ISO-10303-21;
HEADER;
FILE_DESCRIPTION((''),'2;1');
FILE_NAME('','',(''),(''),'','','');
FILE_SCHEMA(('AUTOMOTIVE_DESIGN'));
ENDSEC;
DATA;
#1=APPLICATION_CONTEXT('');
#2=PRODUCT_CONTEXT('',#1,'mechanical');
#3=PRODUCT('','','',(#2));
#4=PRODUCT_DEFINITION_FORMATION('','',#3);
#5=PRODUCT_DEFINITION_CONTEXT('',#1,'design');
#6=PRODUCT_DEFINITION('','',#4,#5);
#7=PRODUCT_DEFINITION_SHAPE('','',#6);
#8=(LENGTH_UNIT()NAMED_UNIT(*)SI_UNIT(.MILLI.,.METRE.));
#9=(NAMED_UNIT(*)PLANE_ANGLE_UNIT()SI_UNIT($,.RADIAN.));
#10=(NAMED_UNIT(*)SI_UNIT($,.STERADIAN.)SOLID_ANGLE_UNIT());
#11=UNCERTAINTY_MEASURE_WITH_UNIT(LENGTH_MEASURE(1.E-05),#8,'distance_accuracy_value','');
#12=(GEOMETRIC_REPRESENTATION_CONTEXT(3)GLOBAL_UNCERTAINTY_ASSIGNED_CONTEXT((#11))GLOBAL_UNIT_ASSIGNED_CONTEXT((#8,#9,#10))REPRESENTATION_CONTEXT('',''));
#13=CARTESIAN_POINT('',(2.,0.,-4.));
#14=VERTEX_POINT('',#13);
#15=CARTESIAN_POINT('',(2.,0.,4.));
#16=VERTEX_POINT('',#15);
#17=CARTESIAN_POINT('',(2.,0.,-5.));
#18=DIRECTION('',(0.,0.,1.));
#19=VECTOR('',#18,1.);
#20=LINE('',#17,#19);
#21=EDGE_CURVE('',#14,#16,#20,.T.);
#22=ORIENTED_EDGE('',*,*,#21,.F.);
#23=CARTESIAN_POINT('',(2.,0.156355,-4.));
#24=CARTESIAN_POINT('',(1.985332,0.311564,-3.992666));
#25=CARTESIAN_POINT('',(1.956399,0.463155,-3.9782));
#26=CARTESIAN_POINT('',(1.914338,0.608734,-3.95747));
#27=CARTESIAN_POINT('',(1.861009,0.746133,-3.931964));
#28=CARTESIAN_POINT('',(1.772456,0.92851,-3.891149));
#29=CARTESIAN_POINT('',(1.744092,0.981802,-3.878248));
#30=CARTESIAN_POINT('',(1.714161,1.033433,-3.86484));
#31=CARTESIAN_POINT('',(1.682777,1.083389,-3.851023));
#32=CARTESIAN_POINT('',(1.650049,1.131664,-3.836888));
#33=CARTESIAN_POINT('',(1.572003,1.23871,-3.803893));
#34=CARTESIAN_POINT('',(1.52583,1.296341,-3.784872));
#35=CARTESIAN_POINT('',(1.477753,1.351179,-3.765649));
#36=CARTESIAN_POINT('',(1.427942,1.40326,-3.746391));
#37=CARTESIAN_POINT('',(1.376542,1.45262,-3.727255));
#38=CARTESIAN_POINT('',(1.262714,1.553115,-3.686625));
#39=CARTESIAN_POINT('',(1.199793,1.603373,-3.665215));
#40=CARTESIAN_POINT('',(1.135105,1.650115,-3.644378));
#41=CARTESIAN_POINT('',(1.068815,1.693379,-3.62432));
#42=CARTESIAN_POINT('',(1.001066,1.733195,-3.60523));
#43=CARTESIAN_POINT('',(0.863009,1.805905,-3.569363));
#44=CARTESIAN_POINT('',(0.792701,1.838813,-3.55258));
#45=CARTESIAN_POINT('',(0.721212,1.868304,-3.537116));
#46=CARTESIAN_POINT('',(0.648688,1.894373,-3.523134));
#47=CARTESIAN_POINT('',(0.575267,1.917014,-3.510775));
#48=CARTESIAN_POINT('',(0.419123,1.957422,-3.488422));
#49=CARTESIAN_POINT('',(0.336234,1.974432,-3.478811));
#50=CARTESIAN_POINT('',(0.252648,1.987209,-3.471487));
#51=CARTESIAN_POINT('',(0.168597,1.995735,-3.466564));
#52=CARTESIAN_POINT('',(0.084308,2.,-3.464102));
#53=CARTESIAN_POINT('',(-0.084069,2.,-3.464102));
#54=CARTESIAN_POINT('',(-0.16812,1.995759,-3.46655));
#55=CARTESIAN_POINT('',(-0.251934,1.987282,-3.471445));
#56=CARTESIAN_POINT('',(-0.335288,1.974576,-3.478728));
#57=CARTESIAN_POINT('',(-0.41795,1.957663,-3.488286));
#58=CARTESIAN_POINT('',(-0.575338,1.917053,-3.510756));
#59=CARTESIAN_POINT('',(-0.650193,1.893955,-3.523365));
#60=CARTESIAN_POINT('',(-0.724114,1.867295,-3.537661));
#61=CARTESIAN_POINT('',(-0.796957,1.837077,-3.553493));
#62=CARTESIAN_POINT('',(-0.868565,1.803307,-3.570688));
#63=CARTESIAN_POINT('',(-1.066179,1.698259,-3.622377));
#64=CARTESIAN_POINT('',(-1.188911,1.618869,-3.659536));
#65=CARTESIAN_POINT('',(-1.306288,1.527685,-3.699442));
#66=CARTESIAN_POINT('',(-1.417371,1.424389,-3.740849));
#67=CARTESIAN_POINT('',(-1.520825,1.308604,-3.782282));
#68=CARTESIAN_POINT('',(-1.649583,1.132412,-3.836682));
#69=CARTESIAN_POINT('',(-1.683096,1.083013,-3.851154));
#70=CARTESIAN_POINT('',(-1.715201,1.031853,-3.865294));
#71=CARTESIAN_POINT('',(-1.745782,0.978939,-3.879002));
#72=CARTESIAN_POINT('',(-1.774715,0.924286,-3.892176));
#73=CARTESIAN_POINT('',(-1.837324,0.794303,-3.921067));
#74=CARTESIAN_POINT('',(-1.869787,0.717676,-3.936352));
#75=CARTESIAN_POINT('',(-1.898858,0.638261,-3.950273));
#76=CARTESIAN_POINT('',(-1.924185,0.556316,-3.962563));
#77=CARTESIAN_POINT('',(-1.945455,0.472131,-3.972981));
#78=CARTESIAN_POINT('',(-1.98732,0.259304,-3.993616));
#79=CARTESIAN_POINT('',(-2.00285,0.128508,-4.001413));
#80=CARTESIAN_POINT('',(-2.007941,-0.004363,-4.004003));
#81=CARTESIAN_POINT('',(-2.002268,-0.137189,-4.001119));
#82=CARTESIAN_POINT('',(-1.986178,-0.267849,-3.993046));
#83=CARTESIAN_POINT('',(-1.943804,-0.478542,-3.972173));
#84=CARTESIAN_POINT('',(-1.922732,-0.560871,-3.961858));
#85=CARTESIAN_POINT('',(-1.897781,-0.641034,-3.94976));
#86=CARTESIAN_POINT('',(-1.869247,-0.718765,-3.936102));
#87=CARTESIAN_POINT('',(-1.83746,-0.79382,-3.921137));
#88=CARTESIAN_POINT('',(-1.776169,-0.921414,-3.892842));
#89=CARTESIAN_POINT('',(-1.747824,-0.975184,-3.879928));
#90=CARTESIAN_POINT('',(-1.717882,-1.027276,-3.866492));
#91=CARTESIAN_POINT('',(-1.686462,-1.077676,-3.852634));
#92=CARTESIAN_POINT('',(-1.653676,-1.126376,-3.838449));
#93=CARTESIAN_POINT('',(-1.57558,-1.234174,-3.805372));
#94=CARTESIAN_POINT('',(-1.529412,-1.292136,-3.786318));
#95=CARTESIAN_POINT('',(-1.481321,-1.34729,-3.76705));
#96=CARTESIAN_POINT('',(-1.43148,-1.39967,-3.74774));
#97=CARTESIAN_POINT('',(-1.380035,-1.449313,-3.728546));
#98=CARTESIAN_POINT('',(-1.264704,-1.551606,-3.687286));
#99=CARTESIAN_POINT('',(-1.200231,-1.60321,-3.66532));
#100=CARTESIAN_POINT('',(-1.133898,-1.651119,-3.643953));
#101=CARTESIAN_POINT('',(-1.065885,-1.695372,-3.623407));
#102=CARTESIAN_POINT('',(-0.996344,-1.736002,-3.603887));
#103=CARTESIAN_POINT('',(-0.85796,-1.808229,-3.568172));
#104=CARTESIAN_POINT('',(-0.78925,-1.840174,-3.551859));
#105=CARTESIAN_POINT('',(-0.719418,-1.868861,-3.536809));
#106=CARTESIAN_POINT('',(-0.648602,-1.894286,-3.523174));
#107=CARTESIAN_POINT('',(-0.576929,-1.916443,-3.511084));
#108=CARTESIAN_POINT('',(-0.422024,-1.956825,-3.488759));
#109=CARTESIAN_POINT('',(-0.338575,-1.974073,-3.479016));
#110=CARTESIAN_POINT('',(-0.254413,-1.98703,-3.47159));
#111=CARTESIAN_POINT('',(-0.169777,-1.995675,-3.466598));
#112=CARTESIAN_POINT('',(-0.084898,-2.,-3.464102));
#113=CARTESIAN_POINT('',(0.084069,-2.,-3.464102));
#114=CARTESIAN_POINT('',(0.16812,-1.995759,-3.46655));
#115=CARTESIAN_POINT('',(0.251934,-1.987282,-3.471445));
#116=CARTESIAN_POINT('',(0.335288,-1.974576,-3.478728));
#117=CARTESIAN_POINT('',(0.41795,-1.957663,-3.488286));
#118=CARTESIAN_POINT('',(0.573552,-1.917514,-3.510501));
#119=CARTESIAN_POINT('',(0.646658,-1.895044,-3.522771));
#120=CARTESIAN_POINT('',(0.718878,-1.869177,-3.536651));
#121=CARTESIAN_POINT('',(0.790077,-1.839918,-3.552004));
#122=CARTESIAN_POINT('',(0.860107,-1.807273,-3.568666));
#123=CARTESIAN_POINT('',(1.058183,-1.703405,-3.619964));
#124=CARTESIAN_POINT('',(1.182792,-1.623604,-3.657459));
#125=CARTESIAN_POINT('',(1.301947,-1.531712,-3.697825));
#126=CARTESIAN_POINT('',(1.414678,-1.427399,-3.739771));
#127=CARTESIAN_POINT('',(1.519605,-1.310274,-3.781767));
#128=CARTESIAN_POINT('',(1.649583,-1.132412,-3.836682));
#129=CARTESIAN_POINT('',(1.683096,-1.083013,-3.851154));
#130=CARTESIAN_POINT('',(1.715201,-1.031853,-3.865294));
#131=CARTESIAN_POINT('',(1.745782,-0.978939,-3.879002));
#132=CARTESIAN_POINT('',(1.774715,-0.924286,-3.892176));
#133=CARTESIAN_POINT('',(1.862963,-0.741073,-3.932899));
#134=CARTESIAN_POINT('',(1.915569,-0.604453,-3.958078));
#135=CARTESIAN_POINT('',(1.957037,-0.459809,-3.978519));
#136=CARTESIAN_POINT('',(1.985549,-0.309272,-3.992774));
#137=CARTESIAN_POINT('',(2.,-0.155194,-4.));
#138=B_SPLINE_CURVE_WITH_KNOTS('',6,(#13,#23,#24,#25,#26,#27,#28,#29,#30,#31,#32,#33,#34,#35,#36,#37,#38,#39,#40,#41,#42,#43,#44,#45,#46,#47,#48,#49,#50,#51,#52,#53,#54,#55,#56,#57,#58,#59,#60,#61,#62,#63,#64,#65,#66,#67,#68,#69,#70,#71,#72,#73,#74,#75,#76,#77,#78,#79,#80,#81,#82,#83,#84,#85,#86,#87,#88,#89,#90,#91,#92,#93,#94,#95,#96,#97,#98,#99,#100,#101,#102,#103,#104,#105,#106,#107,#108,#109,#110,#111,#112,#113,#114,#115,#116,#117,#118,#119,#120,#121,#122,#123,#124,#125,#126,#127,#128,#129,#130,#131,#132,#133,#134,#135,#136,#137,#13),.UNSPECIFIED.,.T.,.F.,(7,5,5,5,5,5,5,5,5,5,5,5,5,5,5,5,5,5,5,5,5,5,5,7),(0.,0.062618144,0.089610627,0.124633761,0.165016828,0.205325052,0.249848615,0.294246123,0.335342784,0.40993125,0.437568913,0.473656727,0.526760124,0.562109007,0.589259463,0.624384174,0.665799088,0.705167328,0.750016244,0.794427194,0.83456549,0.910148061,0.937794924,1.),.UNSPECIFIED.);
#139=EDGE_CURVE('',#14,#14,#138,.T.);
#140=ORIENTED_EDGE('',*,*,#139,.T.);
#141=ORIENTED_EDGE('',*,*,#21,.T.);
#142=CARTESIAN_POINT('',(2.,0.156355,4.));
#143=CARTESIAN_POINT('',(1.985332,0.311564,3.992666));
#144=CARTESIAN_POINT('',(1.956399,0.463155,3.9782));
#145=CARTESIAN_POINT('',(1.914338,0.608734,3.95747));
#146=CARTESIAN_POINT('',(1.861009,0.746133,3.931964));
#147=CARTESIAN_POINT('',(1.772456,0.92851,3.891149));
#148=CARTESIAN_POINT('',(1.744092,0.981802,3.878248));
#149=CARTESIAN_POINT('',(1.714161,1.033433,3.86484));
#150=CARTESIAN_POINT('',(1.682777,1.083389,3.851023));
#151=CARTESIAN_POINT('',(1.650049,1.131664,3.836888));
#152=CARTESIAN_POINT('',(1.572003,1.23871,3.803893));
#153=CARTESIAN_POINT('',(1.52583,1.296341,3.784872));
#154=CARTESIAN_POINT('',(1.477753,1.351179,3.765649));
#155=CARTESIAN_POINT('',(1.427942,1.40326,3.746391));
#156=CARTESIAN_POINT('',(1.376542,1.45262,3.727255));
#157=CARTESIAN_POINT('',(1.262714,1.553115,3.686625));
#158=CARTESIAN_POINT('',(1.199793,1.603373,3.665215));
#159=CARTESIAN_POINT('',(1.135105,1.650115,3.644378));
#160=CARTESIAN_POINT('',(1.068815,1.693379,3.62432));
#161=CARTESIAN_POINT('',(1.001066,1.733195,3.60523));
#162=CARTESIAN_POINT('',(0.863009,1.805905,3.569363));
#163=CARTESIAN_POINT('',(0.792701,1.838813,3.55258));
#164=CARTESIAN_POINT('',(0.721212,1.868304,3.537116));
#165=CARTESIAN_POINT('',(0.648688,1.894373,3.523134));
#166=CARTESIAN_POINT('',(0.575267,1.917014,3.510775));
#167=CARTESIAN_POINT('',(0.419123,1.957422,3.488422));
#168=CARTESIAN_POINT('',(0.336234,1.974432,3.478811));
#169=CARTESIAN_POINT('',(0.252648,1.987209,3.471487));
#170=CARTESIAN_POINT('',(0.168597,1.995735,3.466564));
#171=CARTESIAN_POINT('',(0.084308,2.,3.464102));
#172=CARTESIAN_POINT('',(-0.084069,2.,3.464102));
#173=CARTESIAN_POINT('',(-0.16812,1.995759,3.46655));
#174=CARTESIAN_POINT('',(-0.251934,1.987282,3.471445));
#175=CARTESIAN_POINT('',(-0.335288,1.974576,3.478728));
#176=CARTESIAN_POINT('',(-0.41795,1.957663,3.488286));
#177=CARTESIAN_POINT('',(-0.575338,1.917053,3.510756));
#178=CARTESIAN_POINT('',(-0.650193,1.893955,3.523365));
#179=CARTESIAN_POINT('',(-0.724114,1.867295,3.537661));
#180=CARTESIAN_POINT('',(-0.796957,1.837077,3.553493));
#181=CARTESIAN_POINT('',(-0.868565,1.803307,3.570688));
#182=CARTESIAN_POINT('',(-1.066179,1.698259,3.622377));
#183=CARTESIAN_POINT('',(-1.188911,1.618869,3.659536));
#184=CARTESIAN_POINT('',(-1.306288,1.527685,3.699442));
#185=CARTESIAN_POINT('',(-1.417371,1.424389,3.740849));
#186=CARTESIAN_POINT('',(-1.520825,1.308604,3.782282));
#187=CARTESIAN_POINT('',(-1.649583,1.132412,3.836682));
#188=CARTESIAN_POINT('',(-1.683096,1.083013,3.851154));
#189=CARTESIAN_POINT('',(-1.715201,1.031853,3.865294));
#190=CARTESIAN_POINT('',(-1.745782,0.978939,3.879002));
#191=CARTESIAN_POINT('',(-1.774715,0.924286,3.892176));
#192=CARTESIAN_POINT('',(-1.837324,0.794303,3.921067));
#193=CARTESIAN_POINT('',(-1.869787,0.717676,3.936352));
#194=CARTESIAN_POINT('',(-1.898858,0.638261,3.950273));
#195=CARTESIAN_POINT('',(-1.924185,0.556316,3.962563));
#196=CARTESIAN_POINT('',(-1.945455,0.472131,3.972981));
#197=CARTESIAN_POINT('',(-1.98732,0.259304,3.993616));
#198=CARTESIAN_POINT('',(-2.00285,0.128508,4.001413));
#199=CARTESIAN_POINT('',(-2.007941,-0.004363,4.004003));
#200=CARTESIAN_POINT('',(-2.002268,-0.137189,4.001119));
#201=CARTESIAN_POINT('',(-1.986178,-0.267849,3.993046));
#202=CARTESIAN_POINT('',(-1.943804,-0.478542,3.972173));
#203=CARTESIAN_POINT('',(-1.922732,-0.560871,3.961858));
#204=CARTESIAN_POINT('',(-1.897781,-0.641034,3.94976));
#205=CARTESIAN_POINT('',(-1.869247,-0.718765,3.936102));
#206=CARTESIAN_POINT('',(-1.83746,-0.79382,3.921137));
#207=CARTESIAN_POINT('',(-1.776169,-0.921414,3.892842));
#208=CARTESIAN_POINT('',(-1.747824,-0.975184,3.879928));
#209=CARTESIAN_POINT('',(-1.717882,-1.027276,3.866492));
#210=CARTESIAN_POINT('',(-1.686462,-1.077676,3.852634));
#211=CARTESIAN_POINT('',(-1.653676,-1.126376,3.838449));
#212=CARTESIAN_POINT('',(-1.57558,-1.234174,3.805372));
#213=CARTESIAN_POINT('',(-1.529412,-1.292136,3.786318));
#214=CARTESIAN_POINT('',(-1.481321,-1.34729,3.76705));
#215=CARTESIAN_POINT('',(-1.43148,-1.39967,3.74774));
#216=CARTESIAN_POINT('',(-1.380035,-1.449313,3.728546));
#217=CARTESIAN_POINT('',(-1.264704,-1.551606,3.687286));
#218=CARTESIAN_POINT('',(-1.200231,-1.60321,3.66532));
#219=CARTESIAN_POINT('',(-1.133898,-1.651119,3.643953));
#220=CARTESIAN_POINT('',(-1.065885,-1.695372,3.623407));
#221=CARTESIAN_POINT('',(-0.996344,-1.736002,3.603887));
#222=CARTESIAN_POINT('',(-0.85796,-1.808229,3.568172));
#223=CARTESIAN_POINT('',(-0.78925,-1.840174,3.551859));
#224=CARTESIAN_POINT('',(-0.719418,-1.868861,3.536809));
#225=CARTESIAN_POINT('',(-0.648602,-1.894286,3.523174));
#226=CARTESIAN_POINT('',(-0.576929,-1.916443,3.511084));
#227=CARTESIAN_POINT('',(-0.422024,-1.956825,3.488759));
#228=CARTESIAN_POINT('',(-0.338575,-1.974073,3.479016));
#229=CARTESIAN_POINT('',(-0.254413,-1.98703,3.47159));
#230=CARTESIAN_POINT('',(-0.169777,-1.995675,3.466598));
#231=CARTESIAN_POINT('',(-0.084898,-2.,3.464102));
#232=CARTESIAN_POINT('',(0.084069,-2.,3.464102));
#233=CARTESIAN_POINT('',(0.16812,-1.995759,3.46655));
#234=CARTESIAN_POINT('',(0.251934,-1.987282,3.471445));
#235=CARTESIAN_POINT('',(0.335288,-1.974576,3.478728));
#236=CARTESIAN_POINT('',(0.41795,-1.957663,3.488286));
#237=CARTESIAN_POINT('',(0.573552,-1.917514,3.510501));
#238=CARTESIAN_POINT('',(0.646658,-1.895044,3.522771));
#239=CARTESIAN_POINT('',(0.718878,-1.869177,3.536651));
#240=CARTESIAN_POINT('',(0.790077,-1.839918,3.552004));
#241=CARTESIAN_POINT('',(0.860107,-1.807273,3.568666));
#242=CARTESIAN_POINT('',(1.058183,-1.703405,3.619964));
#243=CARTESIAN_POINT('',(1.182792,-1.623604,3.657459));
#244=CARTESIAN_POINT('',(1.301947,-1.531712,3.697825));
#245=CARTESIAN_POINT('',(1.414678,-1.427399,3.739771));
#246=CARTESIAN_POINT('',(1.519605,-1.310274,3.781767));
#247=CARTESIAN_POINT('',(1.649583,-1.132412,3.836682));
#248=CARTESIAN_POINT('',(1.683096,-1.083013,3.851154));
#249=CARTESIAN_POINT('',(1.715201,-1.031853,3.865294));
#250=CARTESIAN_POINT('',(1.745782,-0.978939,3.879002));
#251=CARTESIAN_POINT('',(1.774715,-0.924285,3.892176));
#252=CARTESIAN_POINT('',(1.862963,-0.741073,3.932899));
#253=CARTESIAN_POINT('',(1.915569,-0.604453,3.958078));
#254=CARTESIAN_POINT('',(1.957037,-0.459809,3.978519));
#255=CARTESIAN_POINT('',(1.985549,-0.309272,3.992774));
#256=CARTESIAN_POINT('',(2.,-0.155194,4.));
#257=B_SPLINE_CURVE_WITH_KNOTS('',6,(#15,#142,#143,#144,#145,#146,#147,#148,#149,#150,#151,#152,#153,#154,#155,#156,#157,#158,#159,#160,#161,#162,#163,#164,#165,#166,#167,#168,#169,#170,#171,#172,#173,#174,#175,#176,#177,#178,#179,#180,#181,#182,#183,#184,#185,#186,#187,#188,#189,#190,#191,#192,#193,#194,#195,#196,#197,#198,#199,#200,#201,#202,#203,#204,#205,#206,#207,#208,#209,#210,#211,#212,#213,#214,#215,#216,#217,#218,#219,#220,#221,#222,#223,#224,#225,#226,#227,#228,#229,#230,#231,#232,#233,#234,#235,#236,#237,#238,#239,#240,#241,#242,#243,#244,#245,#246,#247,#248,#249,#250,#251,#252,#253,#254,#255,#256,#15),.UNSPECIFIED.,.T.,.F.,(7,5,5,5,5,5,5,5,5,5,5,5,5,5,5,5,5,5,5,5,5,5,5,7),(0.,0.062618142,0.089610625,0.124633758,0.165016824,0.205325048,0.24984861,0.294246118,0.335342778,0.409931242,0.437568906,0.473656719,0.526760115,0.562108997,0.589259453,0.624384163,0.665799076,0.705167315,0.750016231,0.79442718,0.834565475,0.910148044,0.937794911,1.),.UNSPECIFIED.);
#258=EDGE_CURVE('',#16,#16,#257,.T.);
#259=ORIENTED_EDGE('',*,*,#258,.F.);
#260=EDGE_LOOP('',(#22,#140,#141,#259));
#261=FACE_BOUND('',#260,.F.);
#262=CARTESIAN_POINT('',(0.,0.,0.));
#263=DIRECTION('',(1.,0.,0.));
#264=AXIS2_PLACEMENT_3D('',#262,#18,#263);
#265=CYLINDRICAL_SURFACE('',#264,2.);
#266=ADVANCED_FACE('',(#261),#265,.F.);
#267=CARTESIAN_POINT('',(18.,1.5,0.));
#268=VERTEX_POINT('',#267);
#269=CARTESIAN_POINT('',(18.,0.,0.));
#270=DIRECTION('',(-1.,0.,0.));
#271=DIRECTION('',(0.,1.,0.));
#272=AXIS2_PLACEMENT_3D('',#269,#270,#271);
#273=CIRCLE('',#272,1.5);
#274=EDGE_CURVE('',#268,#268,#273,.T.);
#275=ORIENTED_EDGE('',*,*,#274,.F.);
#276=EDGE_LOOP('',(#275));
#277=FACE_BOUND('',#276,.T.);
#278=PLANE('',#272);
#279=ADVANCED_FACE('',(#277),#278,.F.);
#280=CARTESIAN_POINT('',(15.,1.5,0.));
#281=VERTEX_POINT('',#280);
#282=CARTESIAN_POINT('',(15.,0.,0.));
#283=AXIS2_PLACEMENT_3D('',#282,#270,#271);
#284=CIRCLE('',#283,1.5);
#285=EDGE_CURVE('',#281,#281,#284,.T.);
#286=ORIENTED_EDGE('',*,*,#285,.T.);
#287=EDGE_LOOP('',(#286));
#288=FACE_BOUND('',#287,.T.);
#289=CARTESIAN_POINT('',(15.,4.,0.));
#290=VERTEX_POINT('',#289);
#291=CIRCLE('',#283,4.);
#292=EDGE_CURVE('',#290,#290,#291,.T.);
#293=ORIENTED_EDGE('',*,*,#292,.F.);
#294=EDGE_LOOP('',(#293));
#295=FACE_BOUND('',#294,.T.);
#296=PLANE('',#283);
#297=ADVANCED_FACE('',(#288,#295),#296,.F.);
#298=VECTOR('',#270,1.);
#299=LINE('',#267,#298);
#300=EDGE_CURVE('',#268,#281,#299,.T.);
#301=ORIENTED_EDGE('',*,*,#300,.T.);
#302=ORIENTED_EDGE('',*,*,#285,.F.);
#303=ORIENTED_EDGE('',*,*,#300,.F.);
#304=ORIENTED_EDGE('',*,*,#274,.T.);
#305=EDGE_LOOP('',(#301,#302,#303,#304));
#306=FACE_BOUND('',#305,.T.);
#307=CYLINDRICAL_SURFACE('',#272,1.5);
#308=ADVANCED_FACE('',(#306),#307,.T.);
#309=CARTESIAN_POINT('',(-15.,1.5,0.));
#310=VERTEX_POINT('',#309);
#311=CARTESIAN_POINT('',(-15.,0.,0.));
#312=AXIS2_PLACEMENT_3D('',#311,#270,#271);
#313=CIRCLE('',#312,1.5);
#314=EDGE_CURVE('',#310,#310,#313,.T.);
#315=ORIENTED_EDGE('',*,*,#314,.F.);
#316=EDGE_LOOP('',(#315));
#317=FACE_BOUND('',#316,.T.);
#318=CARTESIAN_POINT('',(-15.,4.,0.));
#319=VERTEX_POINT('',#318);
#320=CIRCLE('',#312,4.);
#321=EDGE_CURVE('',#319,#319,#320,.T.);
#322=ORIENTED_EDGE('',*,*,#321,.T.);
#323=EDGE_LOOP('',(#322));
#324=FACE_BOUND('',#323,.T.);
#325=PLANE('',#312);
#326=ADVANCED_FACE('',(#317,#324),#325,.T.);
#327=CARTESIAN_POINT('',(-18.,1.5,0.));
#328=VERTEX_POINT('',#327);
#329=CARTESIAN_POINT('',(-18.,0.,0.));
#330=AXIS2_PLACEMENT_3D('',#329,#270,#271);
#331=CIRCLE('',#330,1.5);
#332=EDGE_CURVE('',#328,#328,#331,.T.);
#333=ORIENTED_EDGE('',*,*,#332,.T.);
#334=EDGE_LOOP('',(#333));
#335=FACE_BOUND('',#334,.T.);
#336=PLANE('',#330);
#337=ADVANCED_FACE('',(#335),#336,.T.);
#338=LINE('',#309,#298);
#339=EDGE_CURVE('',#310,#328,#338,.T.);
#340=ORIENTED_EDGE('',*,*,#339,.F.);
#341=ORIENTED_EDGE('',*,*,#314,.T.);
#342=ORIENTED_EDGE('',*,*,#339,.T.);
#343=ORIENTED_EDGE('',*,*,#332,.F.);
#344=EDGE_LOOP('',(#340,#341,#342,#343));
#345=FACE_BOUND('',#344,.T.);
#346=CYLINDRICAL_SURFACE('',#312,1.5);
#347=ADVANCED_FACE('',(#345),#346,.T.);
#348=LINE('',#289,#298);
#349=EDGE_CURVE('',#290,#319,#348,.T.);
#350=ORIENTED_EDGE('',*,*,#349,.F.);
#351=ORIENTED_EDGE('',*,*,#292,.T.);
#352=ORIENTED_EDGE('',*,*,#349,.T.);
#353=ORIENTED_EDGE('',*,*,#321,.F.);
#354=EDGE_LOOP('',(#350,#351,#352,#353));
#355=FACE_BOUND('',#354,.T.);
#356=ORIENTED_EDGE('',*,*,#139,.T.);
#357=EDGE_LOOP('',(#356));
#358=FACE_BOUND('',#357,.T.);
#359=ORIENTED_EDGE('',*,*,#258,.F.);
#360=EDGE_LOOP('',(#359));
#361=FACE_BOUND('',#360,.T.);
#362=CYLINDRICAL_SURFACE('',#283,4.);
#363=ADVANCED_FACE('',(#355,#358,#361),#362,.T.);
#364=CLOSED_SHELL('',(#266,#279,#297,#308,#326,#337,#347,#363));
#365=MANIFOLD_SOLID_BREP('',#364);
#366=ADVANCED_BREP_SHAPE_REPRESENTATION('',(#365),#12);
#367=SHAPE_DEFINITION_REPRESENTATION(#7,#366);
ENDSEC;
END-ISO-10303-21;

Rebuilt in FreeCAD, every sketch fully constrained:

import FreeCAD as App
import Part
import Sketcher


def add_polygon(sketch, points):
    """Adds a closed chain of lines whose ends are joined by coincident constraints."""
    first, n = sketch.GeometryCount, len(points)
    for a, b in zip(points, points[1:] + points[:1]):
        sketch.addGeometry(Part.LineSegment(App.Vector(*a, 0), App.Vector(*b, 0)), False)
    for i in range(n):
        sketch.addConstraint(Sketcher.Constraint("Coincident", first + i, 2, first + (i + 1) % n, 1))

doc = App.newDocument("Part")
body = doc.addObject("PartDesign::Body", "Body")

# Sketch on XY plane
sketch1 = doc.addObject("Sketcher::SketchObject", "Sketch")
body.addObject(sketch1)
sketch1.AttachmentSupport = (doc.XY_Plane, [""])
sketch1.MapMode = "FlatFace"
add_polygon(sketch1, [(-18, 1.5), (-18, 0), (18, 0), (18, 1.5), (15, 1.5), (15, 4), (-15, 4), (-15, 1.5)])  # lines 0-7
sketch1.addConstraint(Sketcher.Constraint("Vertical", 0))
sketch1.addConstraint(Sketcher.Constraint("Horizontal", 1))
sketch1.addConstraint(Sketcher.Constraint("Vertical", 2))
sketch1.addConstraint(Sketcher.Constraint("Horizontal", 3))
sketch1.addConstraint(Sketcher.Constraint("Vertical", 4))
sketch1.addConstraint(Sketcher.Constraint("Horizontal", 5))
sketch1.addConstraint(Sketcher.Constraint("Vertical", 6))
sketch1.addConstraint(Sketcher.Constraint("Horizontal", 7))
sketch1.addConstraint(Sketcher.Constraint("Symmetric", 0, 2, 1, 2, -1, 1))
sketch1.addConstraint(Sketcher.Constraint("Symmetric", 3, 2, 6, 2, -2))
sketch1.addConstraint(Sketcher.Constraint("DistanceX", 1, 1, 1, 2, 36.0))
sketch1.addConstraint(Sketcher.Constraint("DistanceX", 3, 2, 3, 1, 3.0))
sketch1.addConstraint(Sketcher.Constraint("DistanceY", 0, 2, 0, 1, 1.5))
sketch1.addConstraint(Sketcher.Constraint("DistanceY", 4, 1, 4, 2, 2.5))
revolution = doc.addObject("PartDesign::Revolution", "Revolution")
body.addObject(revolution)
revolution.Profile = sketch1
revolution.ReferenceAxis = (sketch1, ["H_Axis"])
revolution.Angle = 360

# Sketch on XY plane
sketch2 = doc.addObject("Sketcher::SketchObject", "Sketch001")
body.addObject(sketch2)
sketch2.AttachmentSupport = (doc.XY_Plane, [""])
sketch2.MapMode = "FlatFace"
sketch2.addGeometry(Part.Circle(App.Vector(0, 0, 0), App.Vector(0, 0, 1), 2), False)
sketch2.addConstraint(Sketcher.Constraint("Coincident", 0, 3, -1, 1))
sketch2.addConstraint(Sketcher.Constraint("Diameter", 0, 4.0))
pocket1 = doc.addObject("PartDesign::Pocket", "Pocket")
body.addObject(pocket1)
pocket1.Profile = sketch2
pocket1.Length = 10
pocket1.Midplane = True

doc.recompute()
